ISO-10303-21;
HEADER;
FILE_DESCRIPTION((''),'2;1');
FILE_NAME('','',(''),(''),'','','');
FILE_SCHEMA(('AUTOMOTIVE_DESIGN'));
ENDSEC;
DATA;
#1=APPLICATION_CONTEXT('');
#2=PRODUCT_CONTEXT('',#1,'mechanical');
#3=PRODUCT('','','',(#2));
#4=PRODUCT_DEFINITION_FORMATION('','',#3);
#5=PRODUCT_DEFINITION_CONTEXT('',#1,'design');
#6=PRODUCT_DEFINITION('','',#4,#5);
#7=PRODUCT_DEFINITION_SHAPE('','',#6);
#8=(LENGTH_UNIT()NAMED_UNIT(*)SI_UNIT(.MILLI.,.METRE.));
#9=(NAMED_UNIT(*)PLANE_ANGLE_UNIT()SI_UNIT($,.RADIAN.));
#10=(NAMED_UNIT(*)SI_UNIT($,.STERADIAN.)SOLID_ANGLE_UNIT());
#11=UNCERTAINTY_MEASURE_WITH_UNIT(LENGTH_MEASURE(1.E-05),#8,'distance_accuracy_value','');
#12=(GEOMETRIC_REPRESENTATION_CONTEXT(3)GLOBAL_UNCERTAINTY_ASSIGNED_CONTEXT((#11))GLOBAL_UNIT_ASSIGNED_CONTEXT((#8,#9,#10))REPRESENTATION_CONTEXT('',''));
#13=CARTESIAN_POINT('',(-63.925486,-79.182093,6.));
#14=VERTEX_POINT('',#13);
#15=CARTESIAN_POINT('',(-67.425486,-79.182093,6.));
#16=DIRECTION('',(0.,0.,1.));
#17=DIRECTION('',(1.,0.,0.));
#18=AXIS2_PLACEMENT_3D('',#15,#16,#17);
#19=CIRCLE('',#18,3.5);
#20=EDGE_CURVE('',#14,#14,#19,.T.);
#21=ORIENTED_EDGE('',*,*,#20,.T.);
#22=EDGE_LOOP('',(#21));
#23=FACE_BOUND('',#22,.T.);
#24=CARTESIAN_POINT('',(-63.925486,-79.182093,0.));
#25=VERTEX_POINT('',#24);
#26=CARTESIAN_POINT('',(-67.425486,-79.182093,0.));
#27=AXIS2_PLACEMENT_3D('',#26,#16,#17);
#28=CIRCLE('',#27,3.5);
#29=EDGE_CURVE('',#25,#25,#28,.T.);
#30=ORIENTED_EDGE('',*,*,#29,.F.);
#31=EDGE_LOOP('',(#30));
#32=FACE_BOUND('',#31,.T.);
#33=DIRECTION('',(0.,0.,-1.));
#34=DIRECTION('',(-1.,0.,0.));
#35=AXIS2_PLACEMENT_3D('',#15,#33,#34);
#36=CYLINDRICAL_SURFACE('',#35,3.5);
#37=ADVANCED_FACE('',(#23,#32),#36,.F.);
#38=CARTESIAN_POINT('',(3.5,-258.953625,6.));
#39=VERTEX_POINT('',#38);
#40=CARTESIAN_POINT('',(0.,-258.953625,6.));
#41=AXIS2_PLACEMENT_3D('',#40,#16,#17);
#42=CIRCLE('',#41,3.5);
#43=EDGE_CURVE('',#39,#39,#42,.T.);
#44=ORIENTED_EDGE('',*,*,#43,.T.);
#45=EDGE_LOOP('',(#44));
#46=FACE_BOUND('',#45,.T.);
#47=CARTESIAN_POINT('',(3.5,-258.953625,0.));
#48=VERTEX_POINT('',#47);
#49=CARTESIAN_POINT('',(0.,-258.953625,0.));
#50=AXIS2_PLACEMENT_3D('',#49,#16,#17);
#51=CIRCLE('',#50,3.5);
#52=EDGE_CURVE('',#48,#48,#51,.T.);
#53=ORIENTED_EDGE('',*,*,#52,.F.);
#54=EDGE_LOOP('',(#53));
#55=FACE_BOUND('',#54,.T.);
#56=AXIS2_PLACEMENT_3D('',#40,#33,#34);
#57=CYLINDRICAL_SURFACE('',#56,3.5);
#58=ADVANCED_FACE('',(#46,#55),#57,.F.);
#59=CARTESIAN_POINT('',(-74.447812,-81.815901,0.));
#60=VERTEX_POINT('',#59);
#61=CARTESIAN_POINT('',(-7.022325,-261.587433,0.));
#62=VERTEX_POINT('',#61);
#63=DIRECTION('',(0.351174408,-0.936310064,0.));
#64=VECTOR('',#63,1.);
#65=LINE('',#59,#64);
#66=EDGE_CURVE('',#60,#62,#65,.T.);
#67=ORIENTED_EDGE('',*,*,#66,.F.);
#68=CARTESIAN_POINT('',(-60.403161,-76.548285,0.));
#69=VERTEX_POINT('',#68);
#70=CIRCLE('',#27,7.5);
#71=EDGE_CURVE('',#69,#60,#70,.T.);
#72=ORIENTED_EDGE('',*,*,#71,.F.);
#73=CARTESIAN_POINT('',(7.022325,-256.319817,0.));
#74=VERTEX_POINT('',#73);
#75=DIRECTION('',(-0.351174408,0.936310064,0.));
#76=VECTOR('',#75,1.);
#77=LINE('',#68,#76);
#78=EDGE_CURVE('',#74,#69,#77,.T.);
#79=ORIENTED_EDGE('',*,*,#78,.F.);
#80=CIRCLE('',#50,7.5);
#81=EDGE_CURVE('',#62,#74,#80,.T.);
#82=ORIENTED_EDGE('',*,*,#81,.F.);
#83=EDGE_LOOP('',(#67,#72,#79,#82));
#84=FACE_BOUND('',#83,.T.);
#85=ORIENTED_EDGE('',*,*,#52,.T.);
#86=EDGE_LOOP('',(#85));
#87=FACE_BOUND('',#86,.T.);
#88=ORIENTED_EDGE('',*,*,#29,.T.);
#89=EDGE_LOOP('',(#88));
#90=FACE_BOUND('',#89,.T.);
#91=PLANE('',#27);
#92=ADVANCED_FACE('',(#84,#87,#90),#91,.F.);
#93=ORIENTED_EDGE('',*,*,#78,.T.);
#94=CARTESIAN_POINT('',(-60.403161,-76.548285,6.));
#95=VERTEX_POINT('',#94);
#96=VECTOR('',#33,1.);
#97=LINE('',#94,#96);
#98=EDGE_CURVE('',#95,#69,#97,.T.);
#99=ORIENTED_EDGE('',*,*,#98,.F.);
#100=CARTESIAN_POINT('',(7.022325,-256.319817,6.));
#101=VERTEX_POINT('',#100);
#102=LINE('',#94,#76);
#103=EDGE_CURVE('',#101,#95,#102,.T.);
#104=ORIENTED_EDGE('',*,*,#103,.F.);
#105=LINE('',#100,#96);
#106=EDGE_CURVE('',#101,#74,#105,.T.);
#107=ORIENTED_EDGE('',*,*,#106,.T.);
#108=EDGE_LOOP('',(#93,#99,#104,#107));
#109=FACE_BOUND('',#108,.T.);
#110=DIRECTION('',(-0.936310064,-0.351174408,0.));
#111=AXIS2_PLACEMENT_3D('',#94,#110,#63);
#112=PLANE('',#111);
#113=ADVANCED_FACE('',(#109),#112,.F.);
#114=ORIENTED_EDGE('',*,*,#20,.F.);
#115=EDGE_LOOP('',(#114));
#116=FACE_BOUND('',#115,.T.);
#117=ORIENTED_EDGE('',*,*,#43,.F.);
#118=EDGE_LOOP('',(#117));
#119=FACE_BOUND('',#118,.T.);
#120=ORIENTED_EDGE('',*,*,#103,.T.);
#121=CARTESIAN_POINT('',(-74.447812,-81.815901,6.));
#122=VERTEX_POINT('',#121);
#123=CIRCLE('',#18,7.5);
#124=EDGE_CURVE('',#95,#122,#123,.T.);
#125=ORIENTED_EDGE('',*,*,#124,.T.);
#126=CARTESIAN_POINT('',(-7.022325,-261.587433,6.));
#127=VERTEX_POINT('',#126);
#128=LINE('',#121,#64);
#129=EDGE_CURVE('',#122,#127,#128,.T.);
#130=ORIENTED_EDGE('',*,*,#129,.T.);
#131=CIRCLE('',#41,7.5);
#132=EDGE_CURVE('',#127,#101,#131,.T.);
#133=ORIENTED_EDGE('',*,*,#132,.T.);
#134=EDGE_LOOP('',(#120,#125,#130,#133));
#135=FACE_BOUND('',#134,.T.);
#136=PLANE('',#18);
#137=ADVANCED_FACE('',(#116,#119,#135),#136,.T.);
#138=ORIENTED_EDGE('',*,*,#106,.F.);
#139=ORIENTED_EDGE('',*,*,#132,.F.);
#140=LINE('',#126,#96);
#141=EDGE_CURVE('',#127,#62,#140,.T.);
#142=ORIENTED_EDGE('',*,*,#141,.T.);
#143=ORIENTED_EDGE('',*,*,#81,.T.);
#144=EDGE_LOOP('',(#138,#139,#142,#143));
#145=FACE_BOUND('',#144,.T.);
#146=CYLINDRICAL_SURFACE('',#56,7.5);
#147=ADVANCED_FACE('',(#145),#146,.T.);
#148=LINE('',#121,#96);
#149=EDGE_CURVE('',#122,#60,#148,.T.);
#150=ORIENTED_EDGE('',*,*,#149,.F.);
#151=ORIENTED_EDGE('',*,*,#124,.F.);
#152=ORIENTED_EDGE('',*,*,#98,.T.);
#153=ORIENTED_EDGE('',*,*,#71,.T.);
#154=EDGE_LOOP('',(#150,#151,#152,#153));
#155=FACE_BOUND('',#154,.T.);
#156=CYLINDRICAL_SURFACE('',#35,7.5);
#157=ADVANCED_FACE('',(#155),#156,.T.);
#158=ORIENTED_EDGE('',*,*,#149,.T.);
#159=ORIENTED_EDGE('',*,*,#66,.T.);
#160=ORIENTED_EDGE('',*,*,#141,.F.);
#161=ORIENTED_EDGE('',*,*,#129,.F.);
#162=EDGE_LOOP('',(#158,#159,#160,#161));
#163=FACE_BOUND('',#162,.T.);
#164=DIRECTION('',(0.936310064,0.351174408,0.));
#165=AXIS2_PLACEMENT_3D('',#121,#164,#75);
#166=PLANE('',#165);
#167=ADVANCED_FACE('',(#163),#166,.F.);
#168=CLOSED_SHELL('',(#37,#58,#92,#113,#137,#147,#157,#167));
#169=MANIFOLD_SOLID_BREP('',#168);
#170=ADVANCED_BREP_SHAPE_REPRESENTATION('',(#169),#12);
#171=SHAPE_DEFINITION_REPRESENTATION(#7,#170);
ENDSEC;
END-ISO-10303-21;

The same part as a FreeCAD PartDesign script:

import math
import FreeCAD as App
import Part
import Sketcher

doc = App.newDocument("Part")
body = doc.addObject("PartDesign::Body", "Body")

# Sketch on XY plane
sketch1 = body.newObject("Sketcher::SketchObject", "Sketch")
sketch1.AttachmentSupport = (doc.getObject("XY_Plane"), [""])
sketch1.MapMode = "FlatFace"
sketch1.addGeometry(Part.LineSegment(App.Vector(7, -256.3, 0), App.Vector(-60.4, -76.5, 0)), False)
sketch1.addGeometry(Part.ArcOfCircle(Part.Circle(App.Vector(-67.4, -79.2, 0), App.Vector(0, 0, 1), 7.5), math.radians(21), math.radians(201)), False)
sketch1.addGeometry(Part.LineSegment(App.Vector(-74.4, -81.8, 0), App.Vector(-7, -261.6, 0)), False)
sketch1.addGeometry(Part.ArcOfCircle(Part.Circle(App.Vector(0, -259, 0), App.Vector(0, 0, 1), 7.5), math.radians(-159), math.radians(21)), False)
sketch1.addGeometry(Part.Circle(App.Vector(0, -259, 0), App.Vector(0, 0, 1), 3.5), False)
sketch1.addGeometry(Part.Circle(App.Vector(-67.4, -79.2, 0), App.Vector(0, 0, 1), 3.5), False)
sketch1.addConstraint(Sketcher.Constraint("Tangent", 0, 2, 1, 1))
sketch1.addConstraint(Sketcher.Constraint("Tangent", 1, 2, 2, 1))
sketch1.addConstraint(Sketcher.Constraint("Tangent", 2, 2, 3, 1))
sketch1.addConstraint(Sketcher.Constraint("Tangent", 3, 2, 0, 1))
sketch1.addConstraint(Sketcher.Constraint("Coincident", 4, 3, 3, 3))
sketch1.addConstraint(Sketcher.Constraint("Coincident", 5, 3, 1, 3))
sketch1.addConstraint(Sketcher.Constraint("Equal", 1, 3))
sketch1.addConstraint(Sketcher.Constraint("Equal", 4, 5))
sketch1.addConstraint(Sketcher.Constraint("PointOnObject", 3, 3, -2))
sketch1.addConstraint(Sketcher.Constraint("Diameter", 4, 7.0))
sketch1.addConstraint(Sketcher.Constraint("Radius", 1, 7.5))
sketch1.addConstraint(Sketcher.Constraint("Distance", 0, 192.0))
sketch1.addConstraint(Sketcher.Constraint("DistanceY", 1, 2, -1, 1, 81.815901))
sketch1.addConstraint(Sketcher.Constraint("DistanceX", 0, 2, -1, 1, 60.403161))
pad1 = body.newObject("PartDesign::Pad", "Pad")
pad1.Profile = sketch1
pad1.Length = 6

doc.recompute()
